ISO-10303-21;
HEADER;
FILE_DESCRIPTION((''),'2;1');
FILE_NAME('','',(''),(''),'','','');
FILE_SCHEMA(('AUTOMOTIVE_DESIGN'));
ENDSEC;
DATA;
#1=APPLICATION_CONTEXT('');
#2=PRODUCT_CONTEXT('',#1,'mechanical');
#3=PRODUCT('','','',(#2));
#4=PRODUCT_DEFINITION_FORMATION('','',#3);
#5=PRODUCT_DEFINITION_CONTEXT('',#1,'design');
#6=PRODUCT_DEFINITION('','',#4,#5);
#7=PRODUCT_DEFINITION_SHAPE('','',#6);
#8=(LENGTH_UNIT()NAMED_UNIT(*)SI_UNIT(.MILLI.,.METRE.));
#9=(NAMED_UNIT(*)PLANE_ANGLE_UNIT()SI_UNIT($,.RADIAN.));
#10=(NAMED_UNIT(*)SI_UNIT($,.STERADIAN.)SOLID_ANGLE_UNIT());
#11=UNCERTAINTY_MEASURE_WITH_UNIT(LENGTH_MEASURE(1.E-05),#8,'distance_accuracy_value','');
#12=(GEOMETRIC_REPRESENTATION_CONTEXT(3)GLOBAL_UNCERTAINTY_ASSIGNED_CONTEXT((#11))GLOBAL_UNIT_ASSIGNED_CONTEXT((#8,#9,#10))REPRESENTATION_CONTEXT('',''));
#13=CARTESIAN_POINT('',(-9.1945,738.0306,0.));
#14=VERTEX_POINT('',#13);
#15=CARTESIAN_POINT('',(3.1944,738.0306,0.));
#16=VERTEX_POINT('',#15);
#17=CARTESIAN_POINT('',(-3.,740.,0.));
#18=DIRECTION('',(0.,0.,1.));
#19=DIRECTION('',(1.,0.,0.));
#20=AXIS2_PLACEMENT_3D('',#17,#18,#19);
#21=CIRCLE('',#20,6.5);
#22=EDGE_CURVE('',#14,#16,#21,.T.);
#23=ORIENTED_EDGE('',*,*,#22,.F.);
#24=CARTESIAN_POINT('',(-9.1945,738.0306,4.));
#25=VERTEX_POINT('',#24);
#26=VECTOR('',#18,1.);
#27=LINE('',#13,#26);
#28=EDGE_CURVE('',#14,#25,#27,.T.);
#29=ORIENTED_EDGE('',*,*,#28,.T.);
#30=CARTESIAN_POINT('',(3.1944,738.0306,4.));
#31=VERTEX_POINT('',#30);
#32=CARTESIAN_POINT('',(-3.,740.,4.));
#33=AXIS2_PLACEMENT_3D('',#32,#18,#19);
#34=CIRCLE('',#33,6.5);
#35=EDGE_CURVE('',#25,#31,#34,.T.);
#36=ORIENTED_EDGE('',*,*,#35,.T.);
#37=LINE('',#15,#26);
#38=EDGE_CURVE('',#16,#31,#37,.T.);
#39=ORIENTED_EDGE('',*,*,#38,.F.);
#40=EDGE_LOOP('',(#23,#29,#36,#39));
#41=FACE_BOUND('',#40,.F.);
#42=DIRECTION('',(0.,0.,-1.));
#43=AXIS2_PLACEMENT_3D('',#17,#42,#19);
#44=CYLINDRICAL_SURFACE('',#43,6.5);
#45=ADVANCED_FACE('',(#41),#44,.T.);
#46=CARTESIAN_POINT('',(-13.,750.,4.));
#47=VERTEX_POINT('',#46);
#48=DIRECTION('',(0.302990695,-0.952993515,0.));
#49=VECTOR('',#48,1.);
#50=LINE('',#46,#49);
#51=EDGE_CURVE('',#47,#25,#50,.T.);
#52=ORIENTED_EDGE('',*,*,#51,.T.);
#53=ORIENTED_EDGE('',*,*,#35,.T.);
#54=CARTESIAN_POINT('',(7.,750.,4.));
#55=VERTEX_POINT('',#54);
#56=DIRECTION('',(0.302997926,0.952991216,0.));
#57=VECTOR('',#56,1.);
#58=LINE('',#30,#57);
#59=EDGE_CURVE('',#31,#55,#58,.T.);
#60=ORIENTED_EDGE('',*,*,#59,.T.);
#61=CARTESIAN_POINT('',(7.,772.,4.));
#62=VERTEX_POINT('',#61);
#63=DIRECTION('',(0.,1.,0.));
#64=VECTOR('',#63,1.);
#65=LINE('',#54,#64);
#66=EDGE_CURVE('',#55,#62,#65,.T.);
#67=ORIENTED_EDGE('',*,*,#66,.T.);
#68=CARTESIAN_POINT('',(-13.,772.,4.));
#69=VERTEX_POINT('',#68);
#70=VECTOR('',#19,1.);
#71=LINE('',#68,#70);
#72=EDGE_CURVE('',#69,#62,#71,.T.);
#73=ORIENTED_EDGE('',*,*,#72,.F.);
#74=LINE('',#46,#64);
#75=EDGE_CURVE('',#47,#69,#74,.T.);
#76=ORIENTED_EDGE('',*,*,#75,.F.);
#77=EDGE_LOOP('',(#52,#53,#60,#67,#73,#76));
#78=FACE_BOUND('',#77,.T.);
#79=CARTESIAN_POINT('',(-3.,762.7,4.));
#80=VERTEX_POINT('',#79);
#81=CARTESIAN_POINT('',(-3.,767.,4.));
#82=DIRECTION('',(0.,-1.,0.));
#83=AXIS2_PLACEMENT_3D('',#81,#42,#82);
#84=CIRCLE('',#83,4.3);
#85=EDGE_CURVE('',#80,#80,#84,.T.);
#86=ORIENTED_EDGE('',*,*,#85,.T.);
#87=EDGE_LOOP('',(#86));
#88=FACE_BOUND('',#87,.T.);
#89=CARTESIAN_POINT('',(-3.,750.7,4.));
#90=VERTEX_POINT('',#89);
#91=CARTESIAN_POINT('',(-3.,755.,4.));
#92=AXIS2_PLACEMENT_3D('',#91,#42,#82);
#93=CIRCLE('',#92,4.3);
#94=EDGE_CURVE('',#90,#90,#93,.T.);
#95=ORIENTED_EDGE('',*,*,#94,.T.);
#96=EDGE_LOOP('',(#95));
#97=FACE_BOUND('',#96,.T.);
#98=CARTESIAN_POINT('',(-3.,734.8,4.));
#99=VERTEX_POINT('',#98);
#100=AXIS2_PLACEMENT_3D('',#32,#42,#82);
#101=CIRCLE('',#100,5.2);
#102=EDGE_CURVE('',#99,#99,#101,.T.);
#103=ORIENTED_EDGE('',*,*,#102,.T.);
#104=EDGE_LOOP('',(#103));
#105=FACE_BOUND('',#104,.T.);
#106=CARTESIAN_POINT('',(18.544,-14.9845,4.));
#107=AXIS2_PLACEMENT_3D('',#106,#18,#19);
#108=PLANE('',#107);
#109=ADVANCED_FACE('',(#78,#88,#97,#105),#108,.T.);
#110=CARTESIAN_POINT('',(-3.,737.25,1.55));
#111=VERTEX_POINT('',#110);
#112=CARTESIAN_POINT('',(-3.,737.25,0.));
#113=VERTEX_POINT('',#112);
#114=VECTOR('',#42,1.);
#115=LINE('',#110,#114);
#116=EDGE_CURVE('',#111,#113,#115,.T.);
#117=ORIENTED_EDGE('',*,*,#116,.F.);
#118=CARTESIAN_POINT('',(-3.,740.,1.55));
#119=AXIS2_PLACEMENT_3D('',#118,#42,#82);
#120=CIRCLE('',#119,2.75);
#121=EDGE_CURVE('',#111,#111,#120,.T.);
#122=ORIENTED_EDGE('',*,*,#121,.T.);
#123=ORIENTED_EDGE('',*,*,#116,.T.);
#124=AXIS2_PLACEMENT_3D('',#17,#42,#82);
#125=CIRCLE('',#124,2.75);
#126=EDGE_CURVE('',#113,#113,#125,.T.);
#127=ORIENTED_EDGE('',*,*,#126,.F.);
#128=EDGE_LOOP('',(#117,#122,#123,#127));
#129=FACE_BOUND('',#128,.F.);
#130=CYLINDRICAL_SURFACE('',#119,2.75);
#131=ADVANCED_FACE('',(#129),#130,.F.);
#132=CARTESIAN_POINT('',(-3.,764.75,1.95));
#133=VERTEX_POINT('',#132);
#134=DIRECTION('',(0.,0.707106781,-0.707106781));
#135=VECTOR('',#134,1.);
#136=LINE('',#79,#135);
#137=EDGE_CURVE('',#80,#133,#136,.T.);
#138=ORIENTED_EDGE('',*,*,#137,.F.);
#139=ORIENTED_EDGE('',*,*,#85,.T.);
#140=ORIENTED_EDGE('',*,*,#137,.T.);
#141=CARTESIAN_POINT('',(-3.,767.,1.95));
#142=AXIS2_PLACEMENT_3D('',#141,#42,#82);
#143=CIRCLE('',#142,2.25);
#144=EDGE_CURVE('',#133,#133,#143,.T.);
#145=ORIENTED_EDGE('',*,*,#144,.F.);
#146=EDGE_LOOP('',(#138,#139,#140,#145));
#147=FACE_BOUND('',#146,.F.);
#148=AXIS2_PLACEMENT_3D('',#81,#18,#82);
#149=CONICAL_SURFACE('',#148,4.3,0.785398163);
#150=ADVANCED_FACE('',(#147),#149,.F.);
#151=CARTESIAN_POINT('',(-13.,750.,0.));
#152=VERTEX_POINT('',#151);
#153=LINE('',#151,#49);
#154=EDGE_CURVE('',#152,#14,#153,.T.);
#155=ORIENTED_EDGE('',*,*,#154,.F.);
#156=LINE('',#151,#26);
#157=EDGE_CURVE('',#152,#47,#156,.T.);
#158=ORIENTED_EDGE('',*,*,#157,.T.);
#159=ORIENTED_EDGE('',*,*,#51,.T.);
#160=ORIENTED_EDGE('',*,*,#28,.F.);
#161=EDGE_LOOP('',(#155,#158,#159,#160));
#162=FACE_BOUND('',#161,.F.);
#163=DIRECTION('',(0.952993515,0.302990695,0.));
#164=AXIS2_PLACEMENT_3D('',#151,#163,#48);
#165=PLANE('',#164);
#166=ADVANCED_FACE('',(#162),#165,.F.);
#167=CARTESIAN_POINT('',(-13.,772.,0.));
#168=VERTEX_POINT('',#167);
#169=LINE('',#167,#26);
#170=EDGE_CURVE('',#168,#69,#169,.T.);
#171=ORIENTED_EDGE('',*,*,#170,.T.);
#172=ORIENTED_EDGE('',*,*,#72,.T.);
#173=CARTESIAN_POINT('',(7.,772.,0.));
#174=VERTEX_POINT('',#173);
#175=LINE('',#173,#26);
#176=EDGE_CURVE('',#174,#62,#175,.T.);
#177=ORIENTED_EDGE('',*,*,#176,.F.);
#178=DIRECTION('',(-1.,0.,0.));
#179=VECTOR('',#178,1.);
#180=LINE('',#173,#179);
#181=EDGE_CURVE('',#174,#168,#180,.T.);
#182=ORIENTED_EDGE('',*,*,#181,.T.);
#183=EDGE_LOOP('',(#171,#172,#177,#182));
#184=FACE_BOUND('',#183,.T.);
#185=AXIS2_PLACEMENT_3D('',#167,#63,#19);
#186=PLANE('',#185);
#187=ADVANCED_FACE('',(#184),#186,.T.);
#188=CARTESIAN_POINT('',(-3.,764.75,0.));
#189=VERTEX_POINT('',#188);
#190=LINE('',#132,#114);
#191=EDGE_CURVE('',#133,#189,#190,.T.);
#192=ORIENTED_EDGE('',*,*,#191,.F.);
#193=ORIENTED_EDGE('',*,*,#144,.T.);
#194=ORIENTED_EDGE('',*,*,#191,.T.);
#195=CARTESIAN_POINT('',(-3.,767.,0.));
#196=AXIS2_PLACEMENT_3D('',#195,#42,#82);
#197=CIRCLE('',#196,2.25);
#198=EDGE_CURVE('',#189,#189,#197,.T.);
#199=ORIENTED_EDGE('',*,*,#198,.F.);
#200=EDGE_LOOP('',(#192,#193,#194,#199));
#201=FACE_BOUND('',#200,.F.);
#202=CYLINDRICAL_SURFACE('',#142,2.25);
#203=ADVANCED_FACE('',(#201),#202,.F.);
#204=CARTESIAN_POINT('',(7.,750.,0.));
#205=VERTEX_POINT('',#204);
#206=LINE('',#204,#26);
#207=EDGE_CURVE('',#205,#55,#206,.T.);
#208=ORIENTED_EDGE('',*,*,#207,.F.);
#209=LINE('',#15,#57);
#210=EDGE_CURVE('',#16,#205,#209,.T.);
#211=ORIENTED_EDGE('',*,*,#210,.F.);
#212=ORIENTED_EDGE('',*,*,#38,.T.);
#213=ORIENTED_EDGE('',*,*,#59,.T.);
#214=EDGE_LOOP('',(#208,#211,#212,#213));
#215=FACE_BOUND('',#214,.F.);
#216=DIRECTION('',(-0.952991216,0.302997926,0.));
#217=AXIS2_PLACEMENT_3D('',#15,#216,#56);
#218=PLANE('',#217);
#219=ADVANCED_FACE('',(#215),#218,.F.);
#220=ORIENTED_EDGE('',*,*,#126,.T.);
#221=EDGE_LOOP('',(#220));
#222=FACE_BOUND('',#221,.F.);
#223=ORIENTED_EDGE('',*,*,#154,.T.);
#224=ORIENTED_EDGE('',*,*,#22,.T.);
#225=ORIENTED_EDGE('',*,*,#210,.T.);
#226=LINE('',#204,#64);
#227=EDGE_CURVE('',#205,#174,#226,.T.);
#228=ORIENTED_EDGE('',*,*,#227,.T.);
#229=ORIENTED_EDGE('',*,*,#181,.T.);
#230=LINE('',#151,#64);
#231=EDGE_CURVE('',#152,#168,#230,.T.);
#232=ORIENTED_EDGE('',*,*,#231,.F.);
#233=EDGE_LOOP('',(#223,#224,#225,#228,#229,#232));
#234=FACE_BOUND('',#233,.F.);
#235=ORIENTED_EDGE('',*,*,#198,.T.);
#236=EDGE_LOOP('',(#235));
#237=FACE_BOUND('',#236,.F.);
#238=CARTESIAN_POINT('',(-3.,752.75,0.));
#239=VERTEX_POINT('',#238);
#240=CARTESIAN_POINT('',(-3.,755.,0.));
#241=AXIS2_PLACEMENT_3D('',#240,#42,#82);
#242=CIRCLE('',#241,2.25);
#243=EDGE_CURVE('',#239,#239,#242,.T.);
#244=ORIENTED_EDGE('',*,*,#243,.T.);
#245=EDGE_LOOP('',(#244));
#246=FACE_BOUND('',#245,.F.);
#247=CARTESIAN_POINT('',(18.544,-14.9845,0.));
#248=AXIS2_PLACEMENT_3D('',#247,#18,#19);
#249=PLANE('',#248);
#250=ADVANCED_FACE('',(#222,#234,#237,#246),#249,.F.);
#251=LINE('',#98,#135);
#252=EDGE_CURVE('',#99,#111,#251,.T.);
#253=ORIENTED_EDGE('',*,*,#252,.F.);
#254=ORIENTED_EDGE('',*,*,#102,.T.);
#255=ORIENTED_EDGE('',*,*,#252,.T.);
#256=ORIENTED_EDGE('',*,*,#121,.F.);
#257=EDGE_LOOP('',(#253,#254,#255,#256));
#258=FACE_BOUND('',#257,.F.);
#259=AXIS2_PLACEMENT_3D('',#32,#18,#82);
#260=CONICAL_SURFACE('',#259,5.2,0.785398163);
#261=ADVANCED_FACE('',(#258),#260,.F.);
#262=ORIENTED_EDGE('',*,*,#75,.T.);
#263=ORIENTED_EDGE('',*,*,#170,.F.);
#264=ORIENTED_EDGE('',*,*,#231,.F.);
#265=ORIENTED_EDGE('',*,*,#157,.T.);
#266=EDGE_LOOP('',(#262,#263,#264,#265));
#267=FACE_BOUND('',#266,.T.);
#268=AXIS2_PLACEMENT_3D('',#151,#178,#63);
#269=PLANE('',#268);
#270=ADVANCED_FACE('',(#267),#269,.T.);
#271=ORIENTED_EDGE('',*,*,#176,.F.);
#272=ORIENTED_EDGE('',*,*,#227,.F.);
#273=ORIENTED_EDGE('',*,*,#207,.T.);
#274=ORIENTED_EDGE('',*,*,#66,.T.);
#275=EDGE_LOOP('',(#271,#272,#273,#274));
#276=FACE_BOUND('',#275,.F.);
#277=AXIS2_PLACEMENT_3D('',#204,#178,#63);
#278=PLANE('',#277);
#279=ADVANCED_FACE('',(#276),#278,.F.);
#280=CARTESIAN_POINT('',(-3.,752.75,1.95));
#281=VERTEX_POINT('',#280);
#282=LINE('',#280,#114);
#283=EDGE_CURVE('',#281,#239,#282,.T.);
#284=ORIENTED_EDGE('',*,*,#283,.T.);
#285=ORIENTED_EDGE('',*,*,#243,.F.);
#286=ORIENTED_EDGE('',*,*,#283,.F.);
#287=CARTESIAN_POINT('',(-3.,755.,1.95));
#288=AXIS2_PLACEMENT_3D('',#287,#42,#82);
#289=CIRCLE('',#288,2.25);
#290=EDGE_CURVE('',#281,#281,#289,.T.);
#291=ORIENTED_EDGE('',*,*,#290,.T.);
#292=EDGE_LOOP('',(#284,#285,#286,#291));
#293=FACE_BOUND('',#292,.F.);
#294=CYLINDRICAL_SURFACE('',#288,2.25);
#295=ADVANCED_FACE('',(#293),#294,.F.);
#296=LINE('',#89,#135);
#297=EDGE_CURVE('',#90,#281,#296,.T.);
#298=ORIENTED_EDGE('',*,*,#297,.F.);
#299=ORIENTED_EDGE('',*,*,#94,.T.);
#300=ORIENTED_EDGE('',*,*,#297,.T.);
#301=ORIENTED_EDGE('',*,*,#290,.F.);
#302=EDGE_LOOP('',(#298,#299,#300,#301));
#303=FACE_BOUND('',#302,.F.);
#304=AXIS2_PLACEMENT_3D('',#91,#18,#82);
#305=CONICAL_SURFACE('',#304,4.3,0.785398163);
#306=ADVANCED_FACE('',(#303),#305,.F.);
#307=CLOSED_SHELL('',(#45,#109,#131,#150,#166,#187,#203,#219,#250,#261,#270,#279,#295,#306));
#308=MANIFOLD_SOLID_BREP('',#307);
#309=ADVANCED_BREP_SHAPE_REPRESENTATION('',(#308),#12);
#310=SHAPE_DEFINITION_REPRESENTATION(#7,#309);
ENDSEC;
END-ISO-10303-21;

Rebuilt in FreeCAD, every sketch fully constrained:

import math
import FreeCAD as App
import Part
import Sketcher

V = App.Vector

doc = App.newDocument("Part")
body = doc.addObject("PartDesign::Body", "Body")

# Sketch on XY plane
sketch1 = body.newObject("Sketcher::SketchObject", "Sketch")
sketch1.AttachmentSupport = (doc.getObject("XY_Plane"), [""])
sketch1.MapMode = "FlatFace"
sketch1.addGeometry(Part.LineSegment(V(-13, 772, 0), V(-13, 750, 0)), False)
sketch1.addGeometry(Part.LineSegment(V(-13, 750, 0), V(-9, 738, 0)), False)
sketch1.addGeometry(Part.ArcOfCircle(Part.Circle(V(-3, 740, 0), V(0, 0, 1), 6), math.radians(-162), math.radians(-18)), False)
sketch1.addGeometry(Part.LineSegment(V(3, 738, 0), V(7, 750, 0)), False)
sketch1.addGeometry(Part.LineSegment(V(7, 750, 0), V(7, 772, 0)), False)
sketch1.addGeometry(Part.LineSegment(V(7, 772, 0), V(-13, 772, 0)), False)
sketch1.addConstraint(Sketcher.Constraint("Coincident", 0, 2, 1, 1))
sketch1.addConstraint(Sketcher.Constraint("Tangent", 1, 2, 2, 1))
sketch1.addConstraint(Sketcher.Constraint("Tangent", 2, 2, 3, 1))
sketch1.addConstraint(Sketcher.Constraint("Coincident", 3, 2, 4, 1))
sketch1.addConstraint(Sketcher.Constraint("Coincident", 4, 2, 5, 1))
sketch1.addConstraint(Sketcher.Constraint("Coincident", 5, 2, 0, 1))
sketch1.addConstraint(Sketcher.Constraint("Vertical", 0))
sketch1.addConstraint(Sketcher.Constraint("Vertical", 4))
sketch1.addConstraint(Sketcher.Constraint("Horizontal", 5))
sketch1.addConstraint(Sketcher.Constraint("Horizontal", 1, 2, 2, 2))
sketch1.addConstraint(Sketcher.Constraint("Horizontal", 0, 2, 3, 2))
sketch1.addConstraint(Sketcher.Constraint("Radius", 2, 6.5))
sketch1.addConstraint(Sketcher.Constraint("DistanceX", 5, 2, 5, 1, 20.0))
sketch1.addConstraint(Sketcher.Constraint("DistanceY", 0, 2, 0, 1, 22.0))
sketch1.addConstraint(Sketcher.Constraint("DistanceX", 2, 3, -1, 1, 3.0))
sketch1.addConstraint(Sketcher.Constraint("DistanceY", -1, 1, 2, 3, 740.0))
sketch1.addConstraint(Sketcher.Constraint("DistanceY", -1, 1, 0, 2, 750.0))
pad1 = body.newObject("PartDesign::Pad", "Pad")
pad1.Profile = sketch1
pad1.Length = 4

# Sketch on XY plane
sketch2 = body.newObject("Sketcher::SketchObject", "Sketch001")
sketch2.AttachmentSupport = (doc.getObject("XY_Plane"), [""])
sketch2.MapMode = "FlatFace"
sketch2.AttachmentOffset = App.Placement(V(0, 0, 4), App.Rotation())
sketch2.addGeometry(Part.Circle(V(-3, 755, 0), V(0, 0, 1), 2.2), False)
sketch2.addGeometry(Part.Circle(V(-3, 767, 0), V(0, 0, 1), 2.2), False)
sketch2.addConstraint(Sketcher.Constraint("Equal", 0, 1))
sketch2.addConstraint(Sketcher.Constraint("Vertical", 0, 3, 1, 3))
sketch2.addConstraint(Sketcher.Constraint("Diameter", 0, 4.5))
sketch2.addConstraint(Sketcher.Constraint("DistanceX", 0, 3, -1, 1, 3.0))
sketch2.addConstraint(Sketcher.Constraint("DistanceY", -1, 1, 0, 3, 755.0))
sketch2.addConstraint(Sketcher.Constraint("DistanceY", -1, 1, 1, 3, 767.0))
doc.recompute()
hole = body.newObject("PartDesign::Hole", "Hole")
hole.Profile = sketch2
hole.ThreadType = "None"
hole.Diameter = 4.5
hole.DepthType = "ThroughAll"
hole.HoleCutType = "Countersink"
hole.HoleCutDiameter = 8.6
hole.HoleCutCountersinkAngle = 90

# Sketch on XY plane
sketch3 = body.newObject("Sketcher::SketchObject", "Sketch002")
sketch3.AttachmentSupport = (doc.getObject("XY_Plane"), [""])
sketch3.MapMode = "FlatFace"
sketch3.AttachmentOffset = App.Placement(V(0, 0, 4), App.Rotation())
sketch3.addGeometry(Part.Circle(V(-3, 740, 0), V(0, 0, 1), 2.8), False)
sketch3.addConstraint(Sketcher.Constraint("Diameter", 0, 5.5))
sketch3.addConstraint(Sketcher.Constraint("DistanceX", 0, 3, -1, 1, 3.0))
sketch3.addConstraint(Sketcher.Constraint("DistanceY", -1, 1, 0, 3, 740.0))
doc.recompute()
hole2 = body.newObject("PartDesign::Hole", "Hole001")
hole2.Profile = sketch3
hole2.ThreadType = "None"
hole2.Diameter = 5.5
hole2.DepthType = "ThroughAll"
hole2.HoleCutType = "Countersink"
hole2.HoleCutDiameter = 10.4
hole2.HoleCutCountersinkAngle = 90

doc.recompute()
